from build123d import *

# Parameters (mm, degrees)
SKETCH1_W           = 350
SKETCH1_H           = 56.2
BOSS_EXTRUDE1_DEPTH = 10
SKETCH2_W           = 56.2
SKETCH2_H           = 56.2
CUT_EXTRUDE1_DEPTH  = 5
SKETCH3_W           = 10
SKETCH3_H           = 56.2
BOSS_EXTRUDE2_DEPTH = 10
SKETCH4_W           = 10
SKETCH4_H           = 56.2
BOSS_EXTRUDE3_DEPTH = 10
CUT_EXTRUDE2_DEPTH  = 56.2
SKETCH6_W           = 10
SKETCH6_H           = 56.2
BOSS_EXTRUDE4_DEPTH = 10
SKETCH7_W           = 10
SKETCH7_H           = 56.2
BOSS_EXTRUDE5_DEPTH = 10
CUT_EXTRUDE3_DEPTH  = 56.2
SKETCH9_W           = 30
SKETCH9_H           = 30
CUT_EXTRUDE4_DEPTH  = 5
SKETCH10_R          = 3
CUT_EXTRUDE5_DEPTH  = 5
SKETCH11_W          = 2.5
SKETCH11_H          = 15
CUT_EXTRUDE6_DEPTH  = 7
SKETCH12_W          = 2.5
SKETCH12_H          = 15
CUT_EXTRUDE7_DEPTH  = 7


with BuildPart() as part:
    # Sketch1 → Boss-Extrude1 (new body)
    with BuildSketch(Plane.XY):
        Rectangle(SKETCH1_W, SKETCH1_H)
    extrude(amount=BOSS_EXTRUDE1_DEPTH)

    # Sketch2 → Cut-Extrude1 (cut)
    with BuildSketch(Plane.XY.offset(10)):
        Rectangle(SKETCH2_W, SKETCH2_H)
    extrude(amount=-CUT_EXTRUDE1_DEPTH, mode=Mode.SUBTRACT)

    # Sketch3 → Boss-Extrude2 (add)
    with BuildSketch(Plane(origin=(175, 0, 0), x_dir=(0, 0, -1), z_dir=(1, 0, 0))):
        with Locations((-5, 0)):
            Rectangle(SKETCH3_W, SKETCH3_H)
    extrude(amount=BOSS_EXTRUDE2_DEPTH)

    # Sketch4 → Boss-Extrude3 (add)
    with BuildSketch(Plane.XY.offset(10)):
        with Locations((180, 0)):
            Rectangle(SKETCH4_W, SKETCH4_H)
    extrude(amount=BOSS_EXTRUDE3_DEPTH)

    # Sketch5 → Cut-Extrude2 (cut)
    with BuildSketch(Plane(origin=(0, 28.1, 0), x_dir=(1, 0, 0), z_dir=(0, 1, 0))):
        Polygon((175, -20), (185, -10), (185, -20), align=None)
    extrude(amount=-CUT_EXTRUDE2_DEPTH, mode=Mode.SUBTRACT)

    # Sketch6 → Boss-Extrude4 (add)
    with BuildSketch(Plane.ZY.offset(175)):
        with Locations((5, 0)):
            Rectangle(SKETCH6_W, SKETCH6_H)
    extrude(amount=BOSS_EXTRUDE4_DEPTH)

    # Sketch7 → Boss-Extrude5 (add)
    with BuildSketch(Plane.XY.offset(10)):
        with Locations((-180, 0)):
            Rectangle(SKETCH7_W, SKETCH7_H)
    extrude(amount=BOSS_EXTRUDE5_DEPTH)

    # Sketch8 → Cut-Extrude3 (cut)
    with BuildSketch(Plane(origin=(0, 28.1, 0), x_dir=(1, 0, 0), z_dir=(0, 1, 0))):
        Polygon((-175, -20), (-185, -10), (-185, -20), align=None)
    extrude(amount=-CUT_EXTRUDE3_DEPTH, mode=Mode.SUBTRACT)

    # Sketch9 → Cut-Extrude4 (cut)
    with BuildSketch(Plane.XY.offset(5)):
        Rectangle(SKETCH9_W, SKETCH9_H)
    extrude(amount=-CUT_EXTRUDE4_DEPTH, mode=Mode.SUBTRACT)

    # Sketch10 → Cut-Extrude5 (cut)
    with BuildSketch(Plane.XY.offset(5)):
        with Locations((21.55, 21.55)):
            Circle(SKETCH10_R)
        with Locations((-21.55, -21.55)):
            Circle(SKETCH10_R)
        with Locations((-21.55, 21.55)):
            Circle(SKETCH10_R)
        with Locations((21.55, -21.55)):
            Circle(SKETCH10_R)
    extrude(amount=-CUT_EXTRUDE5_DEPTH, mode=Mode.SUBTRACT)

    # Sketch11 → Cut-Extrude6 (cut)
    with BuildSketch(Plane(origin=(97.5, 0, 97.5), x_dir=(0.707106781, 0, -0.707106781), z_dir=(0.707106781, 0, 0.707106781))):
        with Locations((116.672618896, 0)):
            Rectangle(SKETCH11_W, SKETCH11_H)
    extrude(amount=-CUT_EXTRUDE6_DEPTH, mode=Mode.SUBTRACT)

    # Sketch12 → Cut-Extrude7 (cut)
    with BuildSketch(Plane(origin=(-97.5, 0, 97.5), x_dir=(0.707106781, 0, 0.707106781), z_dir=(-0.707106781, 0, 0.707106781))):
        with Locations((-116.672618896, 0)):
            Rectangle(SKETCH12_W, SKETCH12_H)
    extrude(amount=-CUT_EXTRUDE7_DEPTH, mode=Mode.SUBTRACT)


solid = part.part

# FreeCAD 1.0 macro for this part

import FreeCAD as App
import Part
import Sketcher

doc = App.newDocument("Part")
body = doc.addObject("PartDesign::Body", "Body")

sketch1 = doc.addObject("Sketcher::SketchObject", "Sketch")
body.addObject(sketch1)
sketch1.AttachmentSupport = (doc.XY_Plane, [""])
sketch1.MapMode = "FlatFace"
sketch1.addGeometry(Part.LineSegment(App.Vector(-175, 28, 0), App.Vector(-175, -28, 0)), False)
sketch1.addGeometry(Part.LineSegment(App.Vector(-175, -28, 0), App.Vector(175, -28, 0)), False)
sketch1.addGeometry(Part.LineSegment(App.Vector(175, -28, 0), App.Vector(175, 28, 0)), False)
sketch1.addGeometry(Part.LineSegment(App.Vector(175, 28, 0), App.Vector(-175, 28, 0)), False)
sketch1.addConstraint(Sketcher.Constraint("Coincident", 0, 2, 1, 1))
sketch1.addConstraint(Sketcher.Constraint("Coincident", 1, 2, 2, 1))
sketch1.addConstraint(Sketcher.Constraint("Coincident", 2, 2, 3, 1))
sketch1.addConstraint(Sketcher.Constraint("Coincident", 3, 2, 0, 1))
sketch1.addConstraint(Sketcher.Constraint("Vertical", 0))
sketch1.addConstraint(Sketcher.Constraint("Horizontal", 1))
sketch1.addConstraint(Sketcher.Constraint("Vertical", 2))
sketch1.addConstraint(Sketcher.Constraint("Horizontal", 3))
sketch1.addConstraint(Sketcher.Constraint("Symmetric", 0, 2, 2, 2, -1, 1))
sketch1.addConstraint(Sketcher.Constraint("DistanceX", 1, 1, 1, 2, 350.0))
sketch1.addConstraint(Sketcher.Constraint("DistanceY", 0, 2, 0, 1, 56.2))
pad1 = doc.addObject("PartDesign::Pad", "Pad")
body.addObject(pad1)
pad1.Profile = sketch1
pad1.Length = 10

sketch2 = doc.addObject("Sketcher::SketchObject", "Sketch001")
body.addObject(sketch2)
sketch2.AttachmentSupport = (doc.XY_Plane, [""])
sketch2.MapMode = "FlatFace"
sketch2.AttachmentOffset = App.Placement(App.Vector(0, 0, 10), App.Rotation())
sketch2.addGeometry(Part.LineSegment(App.Vector(-28, 28, 0), App.Vector(-28, -28, 0)), False)
sketch2.addGeometry(Part.LineSegment(App.Vector(-28, -28, 0), App.Vector(28, -28, 0)), False)
sketch2.addGeometry(Part.LineSegment(App.Vector(28, -28, 0), App.Vector(28, 28, 0)), False)
sketch2.addGeometry(Part.LineSegment(App.Vector(28, 28, 0), App.Vector(-28, 28, 0)), False)
sketch2.addConstraint(Sketcher.Constraint("Coincident", 0, 2, 1, 1))
sketch2.addConstraint(Sketcher.Constraint("Coincident", 1, 2, 2, 1))
sketch2.addConstraint(Sketcher.Constraint("Coincident", 2, 2, 3, 1))
sketch2.addConstraint(Sketcher.Constraint("Coincident", 3, 2, 0, 1))
sketch2.addConstraint(Sketcher.Constraint("Vertical", 0))
sketch2.addConstraint(Sketcher.Constraint("Horizontal", 1))
sketch2.addConstraint(Sketcher.Constraint("Vertical", 2))
sketch2.addConstraint(Sketcher.Constraint("Horizontal", 3))
sketch2.addConstraint(Sketcher.Constraint("Symmetric", 0, 2, 2, 2, -1, 1))
sketch2.addConstraint(Sketcher.Constraint("Equal", 3, 0))
sketch2.addConstraint(Sketcher.Constraint("DistanceX", 1, 1, 1, 2, 56.2))
pocket1 = doc.addObject("PartDesign::Pocket", "Pocket")
body.addObject(pocket1)
pocket1.Profile = sketch2
pocket1.Length = 5

sketch3 = doc.addObject("Sketcher::SketchObject", "Sketch002")
body.addObject(sketch3)
sketch3.AttachmentSupport = (doc.YZ_Plane, [""])
sketch3.MapMode = "FlatFace"
sketch3.AttachmentOffset = App.Placement(App.Vector(0, 0, 175), App.Rotation())
sketch3.addGeometry(Part.LineSegment(App.Vector(28, 10, 0), App.Vector(-28, 10, 0)), False)
sketch3.addGeometry(Part.LineSegment(App.Vector(-28, 10, 0), App.Vector(-28, 0, 0)), False)
sketch3.addGeometry(Part.LineSegment(App.Vector(-28, 0, 0), App.Vector(28, 0, 0)), False)
sketch3.addGeometry(Part.LineSegment(App.Vector(28, 0, 0), App.Vector(28, 10, 0)), False)
sketch3.addConstraint(Sketcher.Constraint("Coincident", 0, 2, 1, 1))
sketch3.addConstraint(Sketcher.Constraint("Coincident", 1, 2, 2, 1))
sketch3.addConstraint(Sketcher.Constraint("Coincident", 2, 2, 3, 1))
sketch3.addConstraint(Sketcher.Constraint("Coincident", 3, 2, 0, 1))
sketch3.addConstraint(Sketcher.Constraint("Horizontal", 0))
sketch3.addConstraint(Sketcher.Constraint("Vertical", 1))
sketch3.addConstraint(Sketcher.Constraint("Horizontal", 2))
sketch3.addConstraint(Sketcher.Constraint("Vertical", 3))
sketch3.addConstraint(Sketcher.Constraint("Symmetric", 1, 2, 2, 2, -1, 1))
sketch3.addConstraint(Sketcher.Constraint("DistanceY", 1, 2, 1, 1, 10.0))
sketch3.addConstraint(Sketcher.Constraint("DistanceX", 0, 2, 0, 1, 56.2))
pad2 = doc.addObject("PartDesign::Pad", "Pad001")
body.addObject(pad2)
pad2.Profile = sketch3
pad2.Length = 10

sketch4 = doc.addObject("Sketcher::SketchObject", "Sketch003")
body.addObject(sketch4)
sketch4.AttachmentSupport = (doc.XY_Plane, [""])
sketch4.MapMode = "FlatFace"
sketch4.AttachmentOffset = App.Placement(App.Vector(0, 0, 10), App.Rotation())
sketch4.addGeometry(Part.LineSegment(App.Vector(175, 28, 0), App.Vector(175, -28, 0)), False)
sketch4.addGeometry(Part.LineSegment(App.Vector(175, -28, 0), App.Vector(185, -28, 0)), False)
sketch4.addGeometry(Part.LineSegment(App.Vector(185, -28, 0), App.Vector(185, 28, 0)), False)
sketch4.addGeometry(Part.LineSegment(App.Vector(185, 28, 0), App.Vector(175, 28, 0)), False)
sketch4.addConstraint(Sketcher.Constraint("Coincident", 0, 2, 1, 1))
sketch4.addConstraint(Sketcher.Constraint("Coincident", 1, 2, 2, 1))
sketch4.addConstraint(Sketcher.Constraint("Coincident", 2, 2, 3, 1))
sketch4.addConstraint(Sketcher.Constraint("Coincident", 3, 2, 0, 1))
sketch4.addConstraint(Sketcher.Constraint("Vertical", 0))
sketch4.addConstraint(Sketcher.Constraint("Horizontal", 1))
sketch4.addConstraint(Sketcher.Constraint("Vertical", 2))
sketch4.addConstraint(Sketcher.Constraint("Horizontal", 3))
sketch4.addConstraint(Sketcher.Constraint("DistanceX", 1, 1, 1, 2, 10.0))
sketch4.addConstraint(Sketcher.Constraint("DistanceY", 0, 2, 0, 1, 56.2))
sketch4.addConstraint(Sketcher.Constraint("DistanceX", -1, 1, 0, 2, 175.0))
sketch4.addConstraint(Sketcher.Constraint("DistanceY", 0, 2, -1, 1, 28.1))
pad3 = doc.addObject("PartDesign::Pad", "Pad002")
body.addObject(pad3)
pad3.Profile = sketch4
pad3.Length = 10

sketch5 = doc.addObject("Sketcher::SketchObject", "Sketch004")
body.addObject(sketch5)
sketch5.AttachmentSupport = (doc.XZ_Plane, [""])
sketch5.MapMode = "FlatFace"
sketch5.AttachmentOffset = App.Placement(App.Vector(0, 0, -28.1), App.Rotation())
sketch5.addGeometry(Part.LineSegment(App.Vector(185, 10, 0), App.Vector(175, 20, 0)), False)
sketch5.addGeometry(Part.LineSegment(App.Vector(175, 20, 0), App.Vector(185, 20, 0)), False)
sketch5.addGeometry(Part.LineSegment(App.Vector(185, 20, 0), App.Vector(185, 10, 0)), False)
sketch5.addConstraint(Sketcher.Constraint("Coincident", 0, 2, 1, 1))
sketch5.addConstraint(Sketcher.Constraint("Coincident", 1, 2, 2, 1))
sketch5.addConstraint(Sketcher.Constraint("Coincident", 2, 2, 0, 1))
sketch5.addConstraint(Sketcher.Constraint("Horizontal", 1))
sketch5.addConstraint(Sketcher.Constraint("Vertical", 2))
sketch5.addConstraint(Sketcher.Constraint("Equal", 1, 2))
sketch5.addConstraint(Sketcher.Constraint("DistanceX", 1, 1, 1, 2, 10.0))
sketch5.addConstraint(Sketcher.Constraint("DistanceX", -1, 1, 0, 2, 175.0))
sketch5.addConstraint(Sketcher.Constraint("DistanceY", -1, 1, 0, 2, 20.0))
pocket2 = doc.addObject("PartDesign::Pocket", "Pocket001")
body.addObject(pocket2)
pocket2.Profile = sketch5
pocket2.Length = 56.2
pocket2.Reversed = True

sketch6 = doc.addObject("Sketcher::SketchObject", "Sketch005")
body.addObject(sketch6)
sketch6.AttachmentSupport = (doc.YZ_Plane, [""])
sketch6.MapMode = "FlatFace"
sketch6.AttachmentOffset = App.Placement(App.Vector(0, 0, -175), App.Rotation())
sketch6.addGeometry(Part.LineSegment(App.Vector(28, 0, 0), App.Vector(-28, 0, 0)), False)
sketch6.addGeometry(Part.LineSegment(App.Vector(-28, 0, 0), App.Vector(-28, 10, 0)), False)
sketch6.addGeometry(Part.LineSegment(App.Vector(-28, 10, 0), App.Vector(28, 10, 0)), False)
sketch6.addGeometry(Part.LineSegment(App.Vector(28, 10, 0), App.Vector(28, 0, 0)), False)
sketch6.addConstraint(Sketcher.Constraint("Coincident", 0, 2, 1, 1))
sketch6.addConstraint(Sketcher.Constraint("Coincident", 1, 2, 2, 1))
sketch6.addConstraint(Sketcher.Constraint("Coincident", 2, 2, 3, 1))
sketch6.addConstraint(Sketcher.Constraint("Coincident", 3, 2, 0, 1))
sketch6.addConstraint(Sketcher.Constraint("Horizontal", 0))
sketch6.addConstraint(Sketcher.Constraint("Vertical", 1))
sketch6.addConstraint(Sketcher.Constraint("Horizontal", 2))
sketch6.addConstraint(Sketcher.Constraint("Vertical", 3))
sketch6.addConstraint(Sketcher.Constraint("Symmetric", 0, 2, 3, 2, -1, 1))
sketch6.addConstraint(Sketcher.Constraint("DistanceY", 1, 1, 1, 2, 10.0))
sketch6.addConstraint(Sketcher.Constraint("DistanceX", 0, 2, 0, 1, 56.2))
pad4 = doc.addObject("PartDesign::Pad", "Pad003")
body.addObject(pad4)
pad4.Profile = sketch6
pad4.Length = 10
pad4.Reversed = True

sketch7 = doc.addObject("Sketcher::SketchObject", "Sketch006")
body.addObject(sketch7)
sketch7.AttachmentSupport = (doc.XY_Plane, [""])
sketch7.MapMode = "FlatFace"
sketch7.AttachmentOffset = App.Placement(App.Vector(0, 0, 10), App.Rotation())
sketch7.addGeometry(Part.LineSegment(App.Vector(-185, 28, 0), App.Vector(-185, -28, 0)), False)
sketch7.addGeometry(Part.LineSegment(App.Vector(-185, -28, 0), App.Vector(-175, -28, 0)), False)
sketch7.addGeometry(Part.LineSegment(App.Vector(-175, -28, 0), App.Vector(-175, 28, 0)), False)
sketch7.addGeometry(Part.LineSegment(App.Vector(-175, 28, 0), App.Vector(-185, 28, 0)), False)
sketch7.addConstraint(Sketcher.Constraint("Coincident", 0, 2, 1, 1))
sketch7.addConstraint(Sketcher.Constraint("Coincident", 1, 2, 2, 1))
sketch7.addConstraint(Sketcher.Constraint("Coincident", 2, 2, 3, 1))
sketch7.addConstraint(Sketcher.Constraint("Coincident", 3, 2, 0, 1))
sketch7.addConstraint(Sketcher.Constraint("Vertical", 0))
sketch7.addConstraint(Sketcher.Constraint("Horizontal", 1))
sketch7.addConstraint(Sketcher.Constraint("Vertical", 2))
sketch7.addConstraint(Sketcher.Constraint("Horizontal", 3))
sketch7.addConstraint(Sketcher.Constraint("DistanceX", 1, 1, 1, 2, 10.0))
sketch7.addConstraint(Sketcher.Constraint("DistanceY", 0, 2, 0, 1, 56.2))
sketch7.addConstraint(Sketcher.Constraint("DistanceX", 0, 2, -1, 1, 185.0))
sketch7.addConstraint(Sketcher.Constraint("DistanceY", 0, 2, -1, 1, 28.1))
pad5 = doc.addObject("PartDesign::Pad", "Pad004")
body.addObject(pad5)
pad5.Profile = sketch7
pad5.Length = 10

sketch8 = doc.addObject("Sketcher::SketchObject", "Sketch007")
body.addObject(sketch8)
sketch8.AttachmentSupport = (doc.XZ_Plane, [""])
sketch8.MapMode = "FlatFace"
sketch8.AttachmentOffset = App.Placement(App.Vector(0, 0, -28.1), App.Rotation())
sketch8.addGeometry(Part.LineSegment(App.Vector(-175, 20, 0), App.Vector(-185, 10, 0)), False)
sketch8.addGeometry(Part.LineSegment(App.Vector(-185, 10, 0), App.Vector(-185, 20, 0)), False)
sketch8.addGeometry(Part.LineSegment(App.Vector(-185, 20, 0), App.Vector(-175, 20, 0)), False)
sketch8.addConstraint(Sketcher.Constraint("Coincident", 0, 2, 1, 1))
sketch8.addConstraint(Sketcher.Constraint("Coincident", 1, 2, 2, 1))
sketch8.addConstraint(Sketcher.Constraint("Coincident", 2, 2, 0, 1))
sketch8.addConstraint(Sketcher.Constraint("Vertical", 1))
sketch8.addConstraint(Sketcher.Constraint("Horizontal", 2))
sketch8.addConstraint(Sketcher.Constraint("Equal", 2, 1))
sketch8.addConstraint(Sketcher.Constraint("DistanceX", 2, 1, 2, 2, 10.0))
sketch8.addConstraint(Sketcher.Constraint("DistanceX", 0, 2, -1, 1, 185.0))
sketch8.addConstraint(Sketcher.Constraint("DistanceY", -1, 1, 0, 2, 10.0))
pocket3 = doc.addObject("PartDesign::Pocket", "Pocket002")
body.addObject(pocket3)
pocket3.Profile = sketch8
pocket3.Length = 56.2
pocket3.Reversed = True

sketch9 = doc.addObject("Sketcher::SketchObject", "Sketch008")
body.addObject(sketch9)
sketch9.AttachmentSupport = (doc.XY_Plane, [""])
sketch9.MapMode = "FlatFace"
sketch9.AttachmentOffset = App.Placement(App.Vector(0, 0, 5), App.Rotation())
sketch9.addGeometry(Part.LineSegment(App.Vector(-15, 15, 0), App.Vector(-15, -15, 0)), False)
sketch9.addGeometry(Part.LineSegment(App.Vector(-15, -15, 0), App.Vector(15, -15, 0)), False)
sketch9.addGeometry(Part.LineSegment(App.Vector(15, -15, 0), App.Vector(15, 15, 0)), False)
sketch9.addGeometry(Part.LineSegment(App.Vector(15, 15, 0), App.Vector(-15, 15, 0)), False)
sketch9.addConstraint(Sketcher.Constraint("Coincident", 0, 2, 1, 1))
sketch9.addConstraint(Sketcher.Constraint("Coincident", 1, 2, 2, 1))
sketch9.addConstraint(Sketcher.Constraint("Coincident", 2, 2, 3, 1))
sketch9.addConstraint(Sketcher.Constraint("Coincident", 3, 2, 0, 1))
sketch9.addConstraint(Sketcher.Constraint("Vertical", 0))
sketch9.addConstraint(Sketcher.Constraint("Horizontal", 1))
sketch9.addConstraint(Sketcher.Constraint("Vertical", 2))
sketch9.addConstraint(Sketcher.Constraint("Horizontal", 3))
sketch9.addConstraint(Sketcher.Constraint("Symmetric", 0, 2, 2, 2, -1, 1))
sketch9.addConstraint(Sketcher.Constraint("Equal", 3, 0))
sketch9.addConstraint(Sketcher.Constraint("DistanceX", 1, 1, 1, 2, 30.0))
pocket4 = doc.addObject("PartDesign::Pocket", "Pocket003")
body.addObject(pocket4)
pocket4.Profile = sketch9
pocket4.Length = 5

sketch10 = doc.addObject("Sketcher::SketchObject", "Sketch009")
body.addObject(sketch10)
sketch10.AttachmentSupport = (doc.XY_Plane, [""])
sketch10.MapMode = "FlatFace"
sketch10.AttachmentOffset = App.Placement(App.Vector(0, 0, 5), App.Rotation())
sketch10.addGeometry(Part.Circle(App.Vector(21.6, 21.6, 0), App.Vector(0, 0, 1), 3), False)
sketch10.addGeometry(Part.Circle(App.Vector(-21.6, -21.6, 0), App.Vector(0, 0, 1), 3), False)
sketch10.addGeometry(Part.Circle(App.Vector(-21.6, 21.6, 0), App.Vector(0, 0, 1), 3), False)
sketch10.addGeometry(Part.Circle(App.Vector(21.6, -21.6, 0), App.Vector(0, 0, 1), 3), False)
sketch10.addConstraint(Sketcher.Constraint("Equal", 0, 1))
sketch10.addConstraint(Sketcher.Constraint("Equal", 1, 2))
sketch10.addConstraint(Sketcher.Constraint("Equal", 2, 3))
sketch10.addConstraint(Sketcher.Constraint("Symmetric", 0, 3, 1, 3, -1, 1))
sketch10.addConstraint(Sketcher.Constraint("Symmetric", 2, 3, 3, 3, -1, 1))
sketch10.addConstraint(Sketcher.Constraint("Symmetric", 0, 3, 2, 3, -2))
sketch10.addConstraint(Sketcher.Constraint("Diameter", 0, 6.0))
sketch10.addConstraint(Sketcher.Constraint("DistanceX", 1, 3, 0, 3, 43.1))
sketch10.addConstraint(Sketcher.Constraint("DistanceY", 1, 3, 0, 3, 43.1))
pocket5 = doc.addObject("PartDesign::Pocket", "Pocket004")
body.addObject(pocket5)
pocket5.Profile = sketch10
pocket5.Length = 5

sketch11 = doc.addObject("Sketcher::SketchObject", "Sketch010")
body.addObject(sketch11)
sketch11.Placement = App.Placement(App.Vector(97.5, 0, 97.5), App.Rotation(App.Vector(0.707106781, 0, -0.707106781), App.Vector(0, 0.999999999, 0), App.Vector(0.707106781, 0, 0.707106781), "ZXY"))
sketch11.addGeometry(Part.LineSegment(App.Vector(115.4, 7.5, 0), App.Vector(115.4, -7.5, 0)), False)
sketch11.addGeometry(Part.LineSegment(App.Vector(115.4, -7.5, 0), App.Vector(117.9, -7.5, 0)), False)
sketch11.addGeometry(Part.LineSegment(App.Vector(117.9, -7.5, 0), App.Vector(117.9, 7.5, 0)), False)
sketch11.addGeometry(Part.LineSegment(App.Vector(117.9, 7.5, 0), App.Vector(115.4, 7.5, 0)), False)
sketch11.addConstraint(Sketcher.Constraint("Coincident", 0, 2, 1, 1))
sketch11.addConstraint(Sketcher.Constraint("Coincident", 1, 2, 2, 1))
sketch11.addConstraint(Sketcher.Constraint("Coincident", 2, 2, 3, 1))
sketch11.addConstraint(Sketcher.Constraint("Coincident", 3, 2, 0, 1))
sketch11.addConstraint(Sketcher.Constraint("Vertical", 0))
sketch11.addConstraint(Sketcher.Constraint("Horizontal", 1))
sketch11.addConstraint(Sketcher.Constraint("Vertical", 2))
sketch11.addConstraint(Sketcher.Constraint("Horizontal", 3))
sketch11.addConstraint(Sketcher.Constraint("DistanceY", 0, 2, 0, 1, 15.0))
sketch11.addConstraint(Sketcher.Constraint("DistanceX", 1, 1, 1, 2, 2.5))
sketch11.addConstraint(Sketcher.Constraint("DistanceY", 0, 2, -1, 1, 7.5))
sketch11.addConstraint(Sketcher.Constraint("DistanceX", -1, 1, 0, 2, 115.422619))
pocket6 = doc.addObject("PartDesign::Pocket", "Pocket005")
body.addObject(pocket6)
pocket6.Profile = sketch11
pocket6.Length = 7

sketch12 = doc.addObject("Sketcher::SketchObject", "Sketch011")
body.addObject(sketch12)
sketch12.Placement = App.Placement(App.Vector(-97.5, 0, 97.5), App.Rotation(App.Vector(0.707106781, 0, 0.707106781), App.Vector(0, 0.999999999, 0), App.Vector(-0.707106781, 0, 0.707106781), "ZXY"))
sketch12.addGeometry(Part.LineSegment(App.Vector(-117.9, 7.5, 0), App.Vector(-117.9, -7.5, 0)), False)
sketch12.addGeometry(Part.LineSegment(App.Vector(-117.9, -7.5, 0), App.Vector(-115.4, -7.5, 0)), False)
sketch12.addGeometry(Part.LineSegment(App.Vector(-115.4, -7.5, 0), App.Vector(-115.4, 7.5, 0)), False)
sketch12.addGeometry(Part.LineSegment(App.Vector(-115.4, 7.5, 0), App.Vector(-117.9, 7.5, 0)), False)
sketch12.addConstraint(Sketcher.Constraint("Coincident", 0, 2, 1, 1))
sketch12.addConstraint(Sketcher.Constraint("Coincident", 1, 2, 2, 1))
sketch12.addConstraint(Sketcher.Constraint("Coincident", 2, 2, 3, 1))
sketch12.addConstraint(Sketcher.Constraint("Coincident", 3, 2, 0, 1))
sketch12.addConstraint(Sketcher.Constraint("Vertical", 0))
sketch12.addConstraint(Sketcher.Constraint("Horizontal", 1))
sketch12.addConstraint(Sketcher.Constraint("Vertical", 2))
sketch12.addConstraint(Sketcher.Constraint("Horizontal", 3))
sketch12.addConstraint(Sketcher.Constraint("DistanceY", 0, 2, 0, 1, 15.0))
sketch12.addConstraint(Sketcher.Constraint("DistanceX", 1, 1, 1, 2, 2.5))
sketch12.addConstraint(Sketcher.Constraint("DistanceY", 0, 2, -1, 1, 7.5))
sketch12.addConstraint(Sketcher.Constraint("DistanceX", 0, 2, -1, 1, 117.922619))
pocket7 = doc.addObject("PartDesign::Pocket", "Pocket006")
body.addObject(pocket7)
pocket7.Profile = sketch12
pocket7.Length = 7

doc.recompute()
